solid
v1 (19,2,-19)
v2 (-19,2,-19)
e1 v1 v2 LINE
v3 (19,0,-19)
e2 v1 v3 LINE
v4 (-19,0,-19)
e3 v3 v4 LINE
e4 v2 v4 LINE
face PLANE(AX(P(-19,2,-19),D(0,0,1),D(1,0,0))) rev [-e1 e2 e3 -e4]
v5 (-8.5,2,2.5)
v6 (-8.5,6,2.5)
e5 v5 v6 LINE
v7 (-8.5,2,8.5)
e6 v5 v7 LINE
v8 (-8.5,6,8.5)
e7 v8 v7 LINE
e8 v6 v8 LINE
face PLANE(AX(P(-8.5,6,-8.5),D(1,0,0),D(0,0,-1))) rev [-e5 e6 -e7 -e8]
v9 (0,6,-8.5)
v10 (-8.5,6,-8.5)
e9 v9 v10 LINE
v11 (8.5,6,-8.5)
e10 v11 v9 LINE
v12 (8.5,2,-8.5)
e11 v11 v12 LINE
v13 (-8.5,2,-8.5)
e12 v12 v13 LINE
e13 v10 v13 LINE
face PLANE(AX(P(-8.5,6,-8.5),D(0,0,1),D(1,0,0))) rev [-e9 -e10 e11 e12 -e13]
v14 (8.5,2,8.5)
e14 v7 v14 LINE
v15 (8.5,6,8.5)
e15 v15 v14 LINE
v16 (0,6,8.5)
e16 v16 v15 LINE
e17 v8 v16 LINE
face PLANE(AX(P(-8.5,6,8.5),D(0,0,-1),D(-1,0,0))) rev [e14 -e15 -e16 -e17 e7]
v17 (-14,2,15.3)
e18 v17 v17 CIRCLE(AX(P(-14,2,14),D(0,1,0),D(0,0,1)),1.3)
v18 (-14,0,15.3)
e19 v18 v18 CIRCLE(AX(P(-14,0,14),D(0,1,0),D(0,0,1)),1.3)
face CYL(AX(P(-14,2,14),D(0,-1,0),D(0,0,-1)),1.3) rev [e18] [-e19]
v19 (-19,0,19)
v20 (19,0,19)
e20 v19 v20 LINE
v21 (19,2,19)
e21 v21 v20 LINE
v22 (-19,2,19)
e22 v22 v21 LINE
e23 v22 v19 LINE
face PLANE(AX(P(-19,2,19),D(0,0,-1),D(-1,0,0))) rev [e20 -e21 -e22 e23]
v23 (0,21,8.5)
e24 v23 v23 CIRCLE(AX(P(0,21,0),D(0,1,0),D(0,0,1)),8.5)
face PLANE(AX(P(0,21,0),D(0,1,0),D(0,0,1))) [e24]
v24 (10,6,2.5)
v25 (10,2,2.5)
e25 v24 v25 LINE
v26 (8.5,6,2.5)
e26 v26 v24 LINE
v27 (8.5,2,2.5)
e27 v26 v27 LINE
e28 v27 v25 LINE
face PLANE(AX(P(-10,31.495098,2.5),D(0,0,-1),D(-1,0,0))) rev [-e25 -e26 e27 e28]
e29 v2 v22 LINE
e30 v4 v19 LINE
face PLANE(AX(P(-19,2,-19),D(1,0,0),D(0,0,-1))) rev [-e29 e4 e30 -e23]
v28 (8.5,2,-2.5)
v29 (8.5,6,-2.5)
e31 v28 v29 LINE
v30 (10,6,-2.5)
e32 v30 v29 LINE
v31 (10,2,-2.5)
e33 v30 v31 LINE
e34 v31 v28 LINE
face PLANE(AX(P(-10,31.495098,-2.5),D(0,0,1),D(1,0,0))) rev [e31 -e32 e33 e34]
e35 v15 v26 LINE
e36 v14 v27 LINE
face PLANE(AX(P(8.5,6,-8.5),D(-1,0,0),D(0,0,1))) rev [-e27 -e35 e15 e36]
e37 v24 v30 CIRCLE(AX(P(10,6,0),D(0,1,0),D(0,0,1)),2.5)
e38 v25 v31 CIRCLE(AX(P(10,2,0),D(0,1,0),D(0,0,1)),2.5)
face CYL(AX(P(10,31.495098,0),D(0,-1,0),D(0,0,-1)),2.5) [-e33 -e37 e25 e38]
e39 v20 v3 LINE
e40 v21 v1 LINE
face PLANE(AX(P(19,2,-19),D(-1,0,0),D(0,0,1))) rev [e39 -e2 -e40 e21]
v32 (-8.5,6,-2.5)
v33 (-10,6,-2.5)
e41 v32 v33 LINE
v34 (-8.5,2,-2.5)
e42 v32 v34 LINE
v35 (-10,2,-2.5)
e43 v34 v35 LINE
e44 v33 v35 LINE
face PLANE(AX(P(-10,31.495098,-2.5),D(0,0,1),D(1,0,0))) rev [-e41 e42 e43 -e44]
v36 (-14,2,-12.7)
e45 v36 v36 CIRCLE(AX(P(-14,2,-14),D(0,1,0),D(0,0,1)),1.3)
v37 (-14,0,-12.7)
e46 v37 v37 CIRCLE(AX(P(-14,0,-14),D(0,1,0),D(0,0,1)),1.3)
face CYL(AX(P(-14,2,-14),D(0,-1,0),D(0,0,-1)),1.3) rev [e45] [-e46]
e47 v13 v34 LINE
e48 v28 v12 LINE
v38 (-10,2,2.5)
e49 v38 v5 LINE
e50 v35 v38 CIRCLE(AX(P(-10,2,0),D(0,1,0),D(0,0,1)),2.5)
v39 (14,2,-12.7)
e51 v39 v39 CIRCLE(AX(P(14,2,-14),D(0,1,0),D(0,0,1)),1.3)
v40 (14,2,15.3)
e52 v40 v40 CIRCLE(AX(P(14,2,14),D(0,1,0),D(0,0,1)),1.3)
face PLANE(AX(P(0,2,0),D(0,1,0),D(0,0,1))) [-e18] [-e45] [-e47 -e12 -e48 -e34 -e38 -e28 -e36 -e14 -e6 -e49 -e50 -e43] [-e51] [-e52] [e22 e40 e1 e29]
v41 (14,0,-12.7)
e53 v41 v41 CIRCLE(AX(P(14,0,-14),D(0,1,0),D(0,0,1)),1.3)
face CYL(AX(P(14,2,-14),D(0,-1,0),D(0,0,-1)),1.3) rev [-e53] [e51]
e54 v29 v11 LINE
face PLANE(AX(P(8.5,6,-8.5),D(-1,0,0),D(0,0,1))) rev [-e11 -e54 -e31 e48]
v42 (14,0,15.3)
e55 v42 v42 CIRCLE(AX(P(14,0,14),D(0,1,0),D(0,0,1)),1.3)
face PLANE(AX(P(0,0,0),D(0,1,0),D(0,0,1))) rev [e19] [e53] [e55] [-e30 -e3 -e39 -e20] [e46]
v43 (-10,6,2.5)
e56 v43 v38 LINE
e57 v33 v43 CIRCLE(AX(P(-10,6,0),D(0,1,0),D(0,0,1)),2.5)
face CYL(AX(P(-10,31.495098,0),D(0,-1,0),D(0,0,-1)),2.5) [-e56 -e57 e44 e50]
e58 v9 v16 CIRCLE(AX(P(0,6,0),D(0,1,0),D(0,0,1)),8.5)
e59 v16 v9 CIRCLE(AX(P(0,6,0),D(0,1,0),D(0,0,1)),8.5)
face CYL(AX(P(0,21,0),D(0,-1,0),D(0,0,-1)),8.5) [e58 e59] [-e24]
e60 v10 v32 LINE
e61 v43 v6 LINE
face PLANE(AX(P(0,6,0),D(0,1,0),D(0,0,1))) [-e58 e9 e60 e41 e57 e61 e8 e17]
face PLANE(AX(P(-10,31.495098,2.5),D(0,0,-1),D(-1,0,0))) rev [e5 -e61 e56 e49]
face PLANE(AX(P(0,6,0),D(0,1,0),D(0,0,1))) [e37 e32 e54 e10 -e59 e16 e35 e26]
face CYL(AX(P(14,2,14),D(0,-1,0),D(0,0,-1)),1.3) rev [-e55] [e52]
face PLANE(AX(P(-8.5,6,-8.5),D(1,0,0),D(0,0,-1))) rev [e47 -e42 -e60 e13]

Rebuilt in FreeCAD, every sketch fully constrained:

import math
import FreeCAD as App
import Part
import Sketcher
from FreeCAD import Vector
Q = App.Units.Quantity


def add_polygon(sketch, points):
    """Adds a closed chain of lines whose ends are joined by coincident constraints."""
    first, n = sketch.GeometryCount, len(points)
    for a, b in zip(points, points[1:] + points[:1]):
        sketch.addGeometry(Part.LineSegment(App.Vector(*a, 0), App.Vector(*b, 0)), False)
    for i in range(n):
        sketch.addConstraint(Sketcher.Constraint("Coincident", first + i, 2, first + (i + 1) % n, 1))

doc = App.newDocument("Part")
params = doc.addObject("Spreadsheet::Sheet", "Params")
for row, (alias, value) in enumerate([
    ("sketch1_diameter", "2.6 mm"),
    ("sketch1_width", "38 mm"),
    ("pad1_length", "2 mm"),
    ("sketch2_width", "17 mm"),
    ("pad2_length", "4 mm"),
    ("sketch3_diameter", "17 mm"),
    ("pad3_length", "15 mm"),
    ("sketch4_radius", "2.5 mm"),
    ("sketch4_width", "20 mm"),
    ("pad4_length", "4 mm"),
], start=1):
    params.set(f"A{row}", alias)
    params.set(f"B{row}", "=" + value)
    params.setAlias(f"B{row}", alias)

body = doc.addObject("PartDesign::Body", "Body")

# Sketch on XZ plane
sketch1 = body.newObject("Sketcher::SketchObject", "Sketch")
sketch1.AttachmentSupport = (doc.getObject("XZ_Plane"), [""])
sketch1.MapMode = "FlatFace"
add_polygon(sketch1, [(-19, -19), (-19, 19), (19, 19), (19, -19)])  # lines 0-3
sketch1.addGeometry(Part.Circle(Vector(-14, 14, 0), Vector(0, 0, 1), 1.3), False)  # 4
sketch1.addGeometry(Part.Circle(Vector(14, 14, 0), Vector(0, 0, 1), 1.3), False)  # 5
sketch1.addGeometry(Part.Circle(Vector(-14, -14, 0), Vector(0, 0, 1), 1.3), False)  # 6
sketch1.addGeometry(Part.Circle(Vector(14, -14, 0), Vector(0, 0, 1), 1.3), False)  # 7
sketch1.addConstraint([
    Sketcher.Constraint("Vertical", 0),
    Sketcher.Constraint("Horizontal", 1),
    Sketcher.Constraint("Vertical", 2),
    Sketcher.Constraint("Horizontal", 3),
    Sketcher.Constraint("Equal", 4, 5),
    Sketcher.Constraint("Equal", 5, 6),
    Sketcher.Constraint("Equal", 6, 7),
    Sketcher.Constraint("Symmetric", 5, 3, 6, 3, -1, 1),
    Sketcher.Constraint("Symmetric", 4, 3, 7, 3, -1, 1),
    Sketcher.Constraint("Symmetric", 0, 2, 2, 2, -1, 1),
    Sketcher.Constraint("Symmetric", 4, 3, 5, 3, -2),
    Sketcher.Constraint("Equal", 3, 0),
    Sketcher.Constraint("Diameter", 4, Q("2.6 mm")),
    Sketcher.Constraint("DistanceX", 1, 1, 1, 2, Q("38 mm")),
    Sketcher.Constraint("DistanceX", 4, 3, -1, 1, Q("14 mm")),
    Sketcher.Constraint("DistanceY", -1, 1, 4, 3, Q("14 mm")),
])
sketch1.setExpression("Constraints[16]", "Params.sketch1_diameter")
sketch1.setExpression("Constraints[17]", "Params.sketch1_width")
pad1 = body.newObject("PartDesign::Pad", "Pad")
pad1.Profile = sketch1
pad1.setExpression("Length", "Params.pad1_length")
pad1.Reversed = True

# Sketch on XZ plane
sketch2 = body.newObject("Sketcher::SketchObject", "Sketch001")
sketch2.AttachmentSupport = (doc.getObject("XZ_Plane"), [""])
sketch2.MapMode = "FlatFace"
sketch2.AttachmentOffset = App.Placement(Vector(0, 0, -2), App.Rotation())
add_polygon(sketch2, [(-8, -8), (-8, 8), (8, 8), (8, -8)])  # lines 0-3
sketch2.addConstraint([
    Sketcher.Constraint("Vertical", 0),
    Sketcher.Constraint("Horizontal", 1),
    Sketcher.Constraint("Vertical", 2),
    Sketcher.Constraint("Horizontal", 3),
    Sketcher.Constraint("Symmetric", 0, 2, 2, 2, -1, 1),
    Sketcher.Constraint("Equal", 3, 0),
    Sketcher.Constraint("DistanceX", 1, 1, 1, 2, Q("17 mm")),
])
sketch2.setExpression("Constraints[10]", "Params.sketch2_width")
pad2 = body.newObject("PartDesign::Pad", "Pad001")
pad2.Profile = sketch2
pad2.setExpression("Length", "Params.pad2_length")
pad2.Reversed = True

# Sketch on XZ plane
sketch3 = body.newObject("Sketcher::SketchObject", "Sketch002")
sketch3.AttachmentSupport = (doc.getObject("XZ_Plane"), [""])
sketch3.MapMode = "FlatFace"
sketch3.AttachmentOffset = App.Placement(Vector(0, 0, -6), App.Rotation())
sketch3.addGeometry(Part.Circle(Vector(0, 0, 0), Vector(0, 0, 1), 8), False)
sketch3.addConstraint([
    Sketcher.Constraint("Coincident", 0, 3, -1, 1),
    Sketcher.Constraint("Diameter", 0, Q("17 mm")),
])
sketch3.setExpression("Constraints[1]", "Params.sketch3_diameter")
pad3 = body.newObject("PartDesign::Pad", "Pad002")
pad3.Profile = sketch3
pad3.setExpression("Length", "Params.pad3_length")
pad3.Reversed = True

# Sketch on XZ plane
sketch4 = body.newObject("Sketcher::SketchObject", "Sketch003")
sketch4.AttachmentSupport = (doc.getObject("XZ_Plane"), [""])
sketch4.MapMode = "FlatFace"
sketch4.AttachmentOffset = App.Placement(Vector(0, 0, -2), App.Rotation())
sketch4.addGeometry([
    Part.LineSegment(Vector(10, -2.5, 0), Vector(-10, -2.5, 0)),
    Part.ArcOfCircle(Part.Circle(Vector(-10, 0, 0), Vector(0, 0, 1), 2.5), math.radians(90), math.radians(270)),
    Part.LineSegment(Vector(-10, 2.5, 0), Vector(10, 2.5, 0)),
    Part.ArcOfCircle(Part.Circle(Vector(10, 0, 0), Vector(0, 0, 1), 2.5), math.radians(-90), math.radians(90)),
], False)
sketch4.addConstraint([
    Sketcher.Constraint("Tangent", 0, 2, 1, 2),
    Sketcher.Constraint("Tangent", 1, 1, 2, 1),
    Sketcher.Constraint("Tangent", 2, 2, 3, 2),
    Sketcher.Constraint("Tangent", 3, 1, 0, 1),
    Sketcher.Constraint("Horizontal", 0),
    Sketcher.Constraint("Horizontal", 2),
    Sketcher.Constraint("Symmetric", 1, 3, 3, 3, -1, 1),
    Sketcher.Constraint("Radius", 1, Q("2.5 mm")),
    Sketcher.Constraint("DistanceX", 0, 2, 0, 1, Q("20 mm")),
])
sketch4.setExpression("Constraints[7]", "Params.sketch4_radius")
sketch4.setExpression("Constraints[8]", "Params.sketch4_width")
pad4 = body.newObject("PartDesign::Pad", "Pad003")
pad4.Profile = sketch4
pad4.setExpression("Length", "Params.pad4_length")
pad4.Reversed = True

doc.recompute()
